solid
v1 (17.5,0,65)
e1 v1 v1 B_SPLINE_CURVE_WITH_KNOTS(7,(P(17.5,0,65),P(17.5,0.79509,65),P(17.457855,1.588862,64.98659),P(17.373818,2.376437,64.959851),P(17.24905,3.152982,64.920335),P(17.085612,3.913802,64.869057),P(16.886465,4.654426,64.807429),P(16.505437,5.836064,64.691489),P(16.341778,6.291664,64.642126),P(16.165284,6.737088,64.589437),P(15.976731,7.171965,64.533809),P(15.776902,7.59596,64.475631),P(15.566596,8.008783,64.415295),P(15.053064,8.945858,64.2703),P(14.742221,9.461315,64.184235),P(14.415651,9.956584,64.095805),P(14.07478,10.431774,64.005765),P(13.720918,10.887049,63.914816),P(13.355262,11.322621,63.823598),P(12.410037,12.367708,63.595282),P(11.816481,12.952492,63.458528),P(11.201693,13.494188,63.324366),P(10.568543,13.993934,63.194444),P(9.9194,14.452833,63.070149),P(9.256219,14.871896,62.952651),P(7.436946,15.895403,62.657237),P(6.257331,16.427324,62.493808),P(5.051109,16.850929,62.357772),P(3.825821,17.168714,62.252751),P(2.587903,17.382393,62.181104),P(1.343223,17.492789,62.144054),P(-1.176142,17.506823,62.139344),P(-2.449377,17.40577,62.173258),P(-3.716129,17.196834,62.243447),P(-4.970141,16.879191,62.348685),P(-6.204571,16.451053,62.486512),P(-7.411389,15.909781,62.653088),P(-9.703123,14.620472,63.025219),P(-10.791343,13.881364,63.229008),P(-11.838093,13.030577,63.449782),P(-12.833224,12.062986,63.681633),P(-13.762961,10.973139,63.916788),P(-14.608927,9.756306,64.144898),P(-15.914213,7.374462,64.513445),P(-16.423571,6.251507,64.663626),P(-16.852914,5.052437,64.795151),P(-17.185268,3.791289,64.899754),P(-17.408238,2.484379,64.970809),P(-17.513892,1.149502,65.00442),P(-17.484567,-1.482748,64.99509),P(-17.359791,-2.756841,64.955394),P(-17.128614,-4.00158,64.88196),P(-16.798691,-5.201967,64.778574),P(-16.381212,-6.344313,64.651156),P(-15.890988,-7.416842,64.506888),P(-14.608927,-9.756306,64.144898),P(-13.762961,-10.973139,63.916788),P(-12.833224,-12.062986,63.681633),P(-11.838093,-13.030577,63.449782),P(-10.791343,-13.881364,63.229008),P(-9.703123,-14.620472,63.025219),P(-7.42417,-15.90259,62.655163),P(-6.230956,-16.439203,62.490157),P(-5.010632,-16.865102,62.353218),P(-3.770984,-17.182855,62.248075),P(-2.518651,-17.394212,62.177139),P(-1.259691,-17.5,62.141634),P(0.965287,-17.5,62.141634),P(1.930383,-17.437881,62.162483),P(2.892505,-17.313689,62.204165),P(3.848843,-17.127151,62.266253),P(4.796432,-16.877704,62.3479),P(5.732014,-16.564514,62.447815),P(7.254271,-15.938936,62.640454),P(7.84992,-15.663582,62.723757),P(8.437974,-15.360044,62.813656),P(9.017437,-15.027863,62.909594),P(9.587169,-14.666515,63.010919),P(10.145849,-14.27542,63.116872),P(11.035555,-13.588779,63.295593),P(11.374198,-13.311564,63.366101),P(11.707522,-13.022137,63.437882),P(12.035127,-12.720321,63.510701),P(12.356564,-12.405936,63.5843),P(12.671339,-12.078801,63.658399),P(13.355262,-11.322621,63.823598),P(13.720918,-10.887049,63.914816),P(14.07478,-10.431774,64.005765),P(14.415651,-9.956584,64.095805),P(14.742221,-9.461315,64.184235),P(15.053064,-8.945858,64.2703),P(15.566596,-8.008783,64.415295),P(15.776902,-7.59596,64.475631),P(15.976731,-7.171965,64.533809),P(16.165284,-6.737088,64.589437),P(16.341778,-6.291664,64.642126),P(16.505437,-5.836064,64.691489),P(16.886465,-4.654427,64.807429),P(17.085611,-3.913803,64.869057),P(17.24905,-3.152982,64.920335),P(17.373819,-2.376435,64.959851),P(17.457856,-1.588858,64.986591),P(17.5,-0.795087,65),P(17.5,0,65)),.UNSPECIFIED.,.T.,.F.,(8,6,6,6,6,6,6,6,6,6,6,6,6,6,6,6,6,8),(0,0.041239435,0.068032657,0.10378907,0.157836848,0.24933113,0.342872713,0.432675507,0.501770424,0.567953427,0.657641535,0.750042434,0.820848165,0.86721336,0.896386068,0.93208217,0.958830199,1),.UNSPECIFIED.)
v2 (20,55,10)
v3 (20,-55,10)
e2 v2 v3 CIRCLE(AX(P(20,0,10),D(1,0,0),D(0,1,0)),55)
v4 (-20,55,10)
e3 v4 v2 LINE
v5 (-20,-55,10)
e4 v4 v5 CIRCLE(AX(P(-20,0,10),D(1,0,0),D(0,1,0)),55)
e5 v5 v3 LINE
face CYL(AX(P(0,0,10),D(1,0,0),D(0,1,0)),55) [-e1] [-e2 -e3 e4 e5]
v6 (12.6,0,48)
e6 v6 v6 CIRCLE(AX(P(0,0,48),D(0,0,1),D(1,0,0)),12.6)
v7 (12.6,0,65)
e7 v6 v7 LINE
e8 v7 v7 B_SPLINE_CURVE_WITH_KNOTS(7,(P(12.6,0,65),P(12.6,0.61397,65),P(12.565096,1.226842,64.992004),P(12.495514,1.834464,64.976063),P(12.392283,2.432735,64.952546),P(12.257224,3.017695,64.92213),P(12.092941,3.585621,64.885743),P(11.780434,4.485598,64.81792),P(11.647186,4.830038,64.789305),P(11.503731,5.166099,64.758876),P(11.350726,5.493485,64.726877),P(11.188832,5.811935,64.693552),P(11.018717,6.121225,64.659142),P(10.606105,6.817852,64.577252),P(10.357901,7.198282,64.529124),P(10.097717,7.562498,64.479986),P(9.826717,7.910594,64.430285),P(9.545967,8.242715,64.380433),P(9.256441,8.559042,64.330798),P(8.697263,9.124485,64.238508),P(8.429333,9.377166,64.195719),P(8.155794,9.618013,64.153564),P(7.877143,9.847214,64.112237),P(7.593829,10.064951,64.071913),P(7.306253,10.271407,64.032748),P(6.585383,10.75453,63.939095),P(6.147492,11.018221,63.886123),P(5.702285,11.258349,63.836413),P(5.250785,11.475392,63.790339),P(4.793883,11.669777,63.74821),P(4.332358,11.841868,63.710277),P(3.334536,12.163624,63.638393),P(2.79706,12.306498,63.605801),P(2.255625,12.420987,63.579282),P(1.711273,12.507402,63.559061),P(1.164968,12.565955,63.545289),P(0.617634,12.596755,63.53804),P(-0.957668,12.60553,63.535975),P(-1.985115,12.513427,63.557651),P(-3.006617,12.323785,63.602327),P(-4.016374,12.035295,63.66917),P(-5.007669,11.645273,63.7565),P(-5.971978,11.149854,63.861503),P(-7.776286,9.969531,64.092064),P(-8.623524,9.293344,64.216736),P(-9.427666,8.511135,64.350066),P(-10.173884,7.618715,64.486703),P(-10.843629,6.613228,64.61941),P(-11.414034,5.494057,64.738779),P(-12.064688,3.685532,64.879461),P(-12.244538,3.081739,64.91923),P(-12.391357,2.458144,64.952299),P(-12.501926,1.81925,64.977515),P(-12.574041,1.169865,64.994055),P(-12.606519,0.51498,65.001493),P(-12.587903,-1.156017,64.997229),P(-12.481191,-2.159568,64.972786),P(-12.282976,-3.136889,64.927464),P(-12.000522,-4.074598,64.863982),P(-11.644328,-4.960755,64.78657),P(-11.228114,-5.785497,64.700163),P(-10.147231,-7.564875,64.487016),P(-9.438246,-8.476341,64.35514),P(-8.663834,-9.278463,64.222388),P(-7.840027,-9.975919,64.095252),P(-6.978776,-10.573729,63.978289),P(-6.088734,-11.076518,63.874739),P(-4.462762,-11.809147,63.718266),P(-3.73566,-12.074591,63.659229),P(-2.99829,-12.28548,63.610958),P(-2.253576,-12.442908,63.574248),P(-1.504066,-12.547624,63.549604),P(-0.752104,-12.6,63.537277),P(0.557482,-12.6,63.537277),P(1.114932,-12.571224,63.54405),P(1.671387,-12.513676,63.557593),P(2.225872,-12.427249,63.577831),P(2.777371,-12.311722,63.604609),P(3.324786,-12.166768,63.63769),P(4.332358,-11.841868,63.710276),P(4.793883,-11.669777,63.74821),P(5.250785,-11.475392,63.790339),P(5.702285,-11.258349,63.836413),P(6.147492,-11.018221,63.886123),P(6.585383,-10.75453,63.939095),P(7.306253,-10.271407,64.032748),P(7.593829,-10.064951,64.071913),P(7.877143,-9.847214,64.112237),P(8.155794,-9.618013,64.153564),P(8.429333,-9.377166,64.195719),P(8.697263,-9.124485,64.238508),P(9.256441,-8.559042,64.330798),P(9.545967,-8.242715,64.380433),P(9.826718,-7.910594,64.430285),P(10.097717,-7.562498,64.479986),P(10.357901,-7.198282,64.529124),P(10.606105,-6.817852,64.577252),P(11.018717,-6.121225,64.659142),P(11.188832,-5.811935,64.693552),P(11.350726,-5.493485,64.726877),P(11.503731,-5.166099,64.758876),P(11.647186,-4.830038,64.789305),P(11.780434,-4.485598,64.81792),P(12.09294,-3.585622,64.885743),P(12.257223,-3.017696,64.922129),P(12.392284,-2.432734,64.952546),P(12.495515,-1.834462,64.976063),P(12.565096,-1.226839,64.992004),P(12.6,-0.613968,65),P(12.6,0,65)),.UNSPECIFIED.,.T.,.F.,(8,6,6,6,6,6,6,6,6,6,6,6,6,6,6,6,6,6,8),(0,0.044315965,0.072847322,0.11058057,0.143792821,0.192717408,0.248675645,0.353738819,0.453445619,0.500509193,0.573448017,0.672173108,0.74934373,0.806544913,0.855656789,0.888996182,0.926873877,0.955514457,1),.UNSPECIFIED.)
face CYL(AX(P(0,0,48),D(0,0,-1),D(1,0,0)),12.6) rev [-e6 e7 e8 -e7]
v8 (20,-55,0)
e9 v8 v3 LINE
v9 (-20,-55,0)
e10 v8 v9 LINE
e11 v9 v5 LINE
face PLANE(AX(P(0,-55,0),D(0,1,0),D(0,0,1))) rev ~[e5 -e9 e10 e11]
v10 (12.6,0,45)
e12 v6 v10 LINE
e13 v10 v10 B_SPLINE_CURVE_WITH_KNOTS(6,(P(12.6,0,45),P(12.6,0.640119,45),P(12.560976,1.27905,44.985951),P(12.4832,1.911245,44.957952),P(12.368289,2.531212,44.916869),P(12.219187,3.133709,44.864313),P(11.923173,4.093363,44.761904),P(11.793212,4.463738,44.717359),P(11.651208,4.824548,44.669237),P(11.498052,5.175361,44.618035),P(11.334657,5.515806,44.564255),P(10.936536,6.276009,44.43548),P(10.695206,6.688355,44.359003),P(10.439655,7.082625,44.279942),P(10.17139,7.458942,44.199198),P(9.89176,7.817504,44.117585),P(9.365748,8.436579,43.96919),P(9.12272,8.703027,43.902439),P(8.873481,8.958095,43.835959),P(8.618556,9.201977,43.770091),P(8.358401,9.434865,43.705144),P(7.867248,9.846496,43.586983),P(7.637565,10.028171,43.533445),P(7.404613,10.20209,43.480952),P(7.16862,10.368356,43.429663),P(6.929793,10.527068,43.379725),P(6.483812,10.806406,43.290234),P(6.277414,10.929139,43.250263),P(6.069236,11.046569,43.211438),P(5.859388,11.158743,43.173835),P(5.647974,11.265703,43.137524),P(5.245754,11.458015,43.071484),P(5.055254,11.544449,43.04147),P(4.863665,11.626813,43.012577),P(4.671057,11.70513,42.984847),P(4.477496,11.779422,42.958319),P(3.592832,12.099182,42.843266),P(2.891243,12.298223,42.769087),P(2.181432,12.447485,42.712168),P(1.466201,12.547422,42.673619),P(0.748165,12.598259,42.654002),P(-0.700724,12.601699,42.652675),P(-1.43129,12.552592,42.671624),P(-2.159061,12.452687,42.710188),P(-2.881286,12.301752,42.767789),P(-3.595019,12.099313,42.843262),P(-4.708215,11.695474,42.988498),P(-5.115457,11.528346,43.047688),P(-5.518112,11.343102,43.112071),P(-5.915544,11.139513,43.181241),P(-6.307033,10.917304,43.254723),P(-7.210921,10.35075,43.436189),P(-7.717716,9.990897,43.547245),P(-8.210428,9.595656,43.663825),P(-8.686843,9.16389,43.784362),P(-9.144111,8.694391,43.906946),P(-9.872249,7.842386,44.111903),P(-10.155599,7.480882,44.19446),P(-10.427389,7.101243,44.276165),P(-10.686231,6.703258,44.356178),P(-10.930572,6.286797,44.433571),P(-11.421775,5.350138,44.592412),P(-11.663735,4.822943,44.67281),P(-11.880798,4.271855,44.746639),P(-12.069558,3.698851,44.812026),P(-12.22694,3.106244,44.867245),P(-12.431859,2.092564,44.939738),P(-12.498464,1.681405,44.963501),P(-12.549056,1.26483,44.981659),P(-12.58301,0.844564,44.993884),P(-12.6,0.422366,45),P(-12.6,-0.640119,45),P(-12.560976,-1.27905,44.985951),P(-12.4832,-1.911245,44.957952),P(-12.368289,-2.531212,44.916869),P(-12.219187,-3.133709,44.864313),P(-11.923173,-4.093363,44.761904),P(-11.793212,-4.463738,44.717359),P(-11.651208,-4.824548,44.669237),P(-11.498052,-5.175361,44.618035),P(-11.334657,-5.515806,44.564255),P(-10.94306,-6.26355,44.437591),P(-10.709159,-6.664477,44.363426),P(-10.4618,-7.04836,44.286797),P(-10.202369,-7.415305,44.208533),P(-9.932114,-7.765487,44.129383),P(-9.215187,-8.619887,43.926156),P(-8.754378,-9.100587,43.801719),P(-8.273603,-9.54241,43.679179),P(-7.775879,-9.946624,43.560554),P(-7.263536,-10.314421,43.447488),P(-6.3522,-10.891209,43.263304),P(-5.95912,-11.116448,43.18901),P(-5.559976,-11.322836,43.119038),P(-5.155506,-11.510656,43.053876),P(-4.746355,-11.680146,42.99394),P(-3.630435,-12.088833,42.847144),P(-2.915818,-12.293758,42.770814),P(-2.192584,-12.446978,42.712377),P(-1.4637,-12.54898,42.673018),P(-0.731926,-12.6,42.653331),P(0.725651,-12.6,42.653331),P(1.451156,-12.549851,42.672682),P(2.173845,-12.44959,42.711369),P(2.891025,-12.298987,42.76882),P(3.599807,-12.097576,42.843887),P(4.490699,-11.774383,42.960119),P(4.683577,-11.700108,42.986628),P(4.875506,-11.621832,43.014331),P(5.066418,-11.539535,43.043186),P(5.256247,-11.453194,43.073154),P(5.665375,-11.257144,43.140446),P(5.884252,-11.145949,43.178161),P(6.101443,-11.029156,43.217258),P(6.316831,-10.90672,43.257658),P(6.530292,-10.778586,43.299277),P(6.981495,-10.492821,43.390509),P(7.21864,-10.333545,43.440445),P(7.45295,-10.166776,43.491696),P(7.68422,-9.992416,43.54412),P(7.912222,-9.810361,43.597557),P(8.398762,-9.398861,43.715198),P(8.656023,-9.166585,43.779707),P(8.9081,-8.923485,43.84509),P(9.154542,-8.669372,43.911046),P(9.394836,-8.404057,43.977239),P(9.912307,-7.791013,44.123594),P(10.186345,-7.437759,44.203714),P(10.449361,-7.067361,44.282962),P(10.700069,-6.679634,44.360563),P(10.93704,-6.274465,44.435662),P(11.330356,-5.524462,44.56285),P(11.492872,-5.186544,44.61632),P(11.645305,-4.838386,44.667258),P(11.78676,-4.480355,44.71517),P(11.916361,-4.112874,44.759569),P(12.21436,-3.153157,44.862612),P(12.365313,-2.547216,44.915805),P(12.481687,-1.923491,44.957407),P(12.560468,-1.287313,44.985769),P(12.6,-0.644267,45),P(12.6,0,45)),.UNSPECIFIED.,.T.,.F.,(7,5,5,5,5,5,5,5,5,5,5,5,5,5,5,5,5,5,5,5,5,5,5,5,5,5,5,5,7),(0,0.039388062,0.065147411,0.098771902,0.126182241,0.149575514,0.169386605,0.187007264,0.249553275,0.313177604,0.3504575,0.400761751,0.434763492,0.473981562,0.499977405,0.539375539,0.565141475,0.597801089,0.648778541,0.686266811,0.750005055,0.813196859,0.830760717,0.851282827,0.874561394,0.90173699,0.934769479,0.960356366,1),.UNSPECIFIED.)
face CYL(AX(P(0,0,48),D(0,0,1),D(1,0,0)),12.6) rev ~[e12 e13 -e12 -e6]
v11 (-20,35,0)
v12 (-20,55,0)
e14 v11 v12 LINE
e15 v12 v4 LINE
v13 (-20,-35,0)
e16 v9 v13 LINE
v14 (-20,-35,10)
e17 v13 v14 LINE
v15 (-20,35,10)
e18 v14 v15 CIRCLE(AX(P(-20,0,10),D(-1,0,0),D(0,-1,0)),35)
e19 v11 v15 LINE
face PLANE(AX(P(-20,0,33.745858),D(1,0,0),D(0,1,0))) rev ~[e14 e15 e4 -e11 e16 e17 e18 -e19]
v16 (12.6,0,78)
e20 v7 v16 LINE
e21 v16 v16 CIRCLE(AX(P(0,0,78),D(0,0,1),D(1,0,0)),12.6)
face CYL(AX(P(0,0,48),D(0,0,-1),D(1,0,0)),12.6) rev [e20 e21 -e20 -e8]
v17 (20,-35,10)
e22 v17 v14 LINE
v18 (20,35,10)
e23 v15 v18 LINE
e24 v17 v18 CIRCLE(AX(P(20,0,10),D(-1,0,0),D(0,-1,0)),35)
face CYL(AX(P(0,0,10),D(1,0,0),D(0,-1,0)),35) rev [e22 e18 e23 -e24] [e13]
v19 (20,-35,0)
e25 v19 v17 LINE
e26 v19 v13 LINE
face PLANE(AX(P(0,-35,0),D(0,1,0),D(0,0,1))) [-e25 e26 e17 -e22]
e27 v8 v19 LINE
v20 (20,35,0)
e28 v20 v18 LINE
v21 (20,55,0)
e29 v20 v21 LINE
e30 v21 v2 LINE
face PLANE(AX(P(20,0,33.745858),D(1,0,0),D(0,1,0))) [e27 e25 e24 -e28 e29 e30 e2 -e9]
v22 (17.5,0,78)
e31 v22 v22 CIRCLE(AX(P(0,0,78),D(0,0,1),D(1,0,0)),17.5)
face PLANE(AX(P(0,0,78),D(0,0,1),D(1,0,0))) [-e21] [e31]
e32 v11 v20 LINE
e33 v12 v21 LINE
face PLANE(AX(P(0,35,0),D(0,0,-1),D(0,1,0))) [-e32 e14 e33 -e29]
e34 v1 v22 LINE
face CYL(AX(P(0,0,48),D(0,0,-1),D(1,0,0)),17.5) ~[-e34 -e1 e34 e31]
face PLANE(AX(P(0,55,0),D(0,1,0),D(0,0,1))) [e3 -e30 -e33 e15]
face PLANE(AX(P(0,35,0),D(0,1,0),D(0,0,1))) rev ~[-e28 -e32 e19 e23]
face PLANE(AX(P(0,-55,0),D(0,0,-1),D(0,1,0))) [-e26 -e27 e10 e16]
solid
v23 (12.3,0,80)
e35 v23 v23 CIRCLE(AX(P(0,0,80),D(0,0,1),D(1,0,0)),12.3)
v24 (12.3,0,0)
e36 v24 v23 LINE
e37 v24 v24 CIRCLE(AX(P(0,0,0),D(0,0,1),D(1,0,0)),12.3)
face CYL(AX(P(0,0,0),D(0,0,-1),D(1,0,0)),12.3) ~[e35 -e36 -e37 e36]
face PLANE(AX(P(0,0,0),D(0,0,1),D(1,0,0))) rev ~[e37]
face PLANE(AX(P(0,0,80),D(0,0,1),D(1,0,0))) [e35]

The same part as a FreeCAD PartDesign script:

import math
import FreeCAD as App
import Part
import Sketcher

V = App.Vector

doc = App.newDocument("Part")
params = doc.addObject("Spreadsheet::Sheet", "Params")
for row, (alias, value) in enumerate([
    ("sketch1_radius", "35 mm"),
    ("sketch1_radius2", "55 mm"),
    ("sketch1_height", "10 mm"),
    ("pad1_length", "20 mm"),
    ("pad1_length2", "20 mm"),
    ("sketch2_diameter", "35 mm"),
    ("sketch2_diameter2", "25.2 mm"),
    ("pad2_length", "30 mm"),
    ("sketch3_diameter", "25.2 mm"),
    ("sketch4_diameter", "24.6 mm"),
    ("pad3_length", "80 mm"),
], start=1):
    params.set(f"A{row}", alias)
    params.set(f"B{row}", "=" + value)
    params.setAlias(f"B{row}", alias)

body = doc.addObject("PartDesign::Body", "Body")

sketch1 = body.newObject("Sketcher::SketchObject", "Sketch")
sketch1.AttachmentSupport = (doc.getObject("YZ_Plane"), [""])
sketch1.MapMode = "FlatFace"
sketch1.addGeometry([
    Part.ArcOfCircle(Part.Circle(V(0, 10, 0), V(0, 0, 1), 35), math.radians(0), math.radians(180)),
    Part.LineSegment(V(35, 10, 0), V(35, 0, 0)),
    Part.LineSegment(V(35, 0, 0), V(55, 0, 0)),
    Part.LineSegment(V(55, 0, 0), V(55, 10, 0)),
    Part.ArcOfCircle(Part.Circle(V(0, 10, 0), V(0, 0, 1), 55), math.radians(0), math.radians(180)),
    Part.LineSegment(V(-55, 10, 0), V(-55, 0, 0)),
    Part.LineSegment(V(-55, 0, 0), V(-35, 0, 0)),
    Part.LineSegment(V(-35, 0, 0), V(-35, 10, 0)),
], False)
sketch1.addConstraint([
    Sketcher.Constraint("Tangent", 0, 1, 1, 1),
    Sketcher.Constraint("Coincident", 1, 2, 2, 1),
    Sketcher.Constraint("Coincident", 2, 2, 3, 1),
    Sketcher.Constraint("Tangent", 3, 2, 4, 1),
    Sketcher.Constraint("Tangent", 4, 2, 5, 1),
    Sketcher.Constraint("Coincident", 5, 2, 6, 1),
    Sketcher.Constraint("Coincident", 6, 2, 7, 1),
    Sketcher.Constraint("Tangent", 7, 2, 0, 2),
    Sketcher.Constraint("Vertical", 1),
    Sketcher.Constraint("Horizontal", 2),
    Sketcher.Constraint("Vertical", 3),
    Sketcher.Constraint("Vertical", 5),
    Sketcher.Constraint("Horizontal", 6),
    Sketcher.Constraint("Vertical", 7),
    Sketcher.Constraint("Coincident", 4, 3, 0, 3),
    Sketcher.Constraint("Symmetric", 2, 2, 5, 2, -1, 1),
    Sketcher.Constraint("PointOnObject", 1, 2, -1),
    Sketcher.Constraint("Radius", 0, 35.0),
    Sketcher.Constraint("Radius", 4, 55.0),
    Sketcher.Constraint("DistanceY", 1, 2, 1, 1, 10.0),
])
sketch1.setExpression("Constraints[17]", "Params.sketch1_radius")
sketch1.setExpression("Constraints[18]", "Params.sketch1_radius2")
sketch1.setExpression("Constraints[19]", "Params.sketch1_height")
pad1 = body.newObject("PartDesign::Pad", "Pad")
pad1.Profile = sketch1
pad1.Type = "TwoLengths"
pad1.setExpression("Length", "Params.pad1_length")
pad1.setExpression("Length2", "Params.pad1_length2")

sketch2 = body.newObject("Sketcher::SketchObject", "Sketch001")
sketch2.AttachmentSupport = (doc.getObject("XY_Plane"), [""])
sketch2.MapMode = "FlatFace"
sketch2.AttachmentOffset = App.Placement(V(0, 0, 48), App.Rotation())
sketch2.addGeometry([
    Part.Circle(V(0, 0, 0), V(0, 0, 1), 18),
    Part.Circle(V(0, 0, 0), V(0, 0, 1), 13),
], False)
sketch2.addConstraint([
    Sketcher.Constraint("Coincident", 0, 3, -1, 1),
    Sketcher.Constraint("Coincident", 1, 3, -1, 1),
    Sketcher.Constraint("Diameter", 0, 35.0),
    Sketcher.Constraint("Diameter", 1, 25.2),
])
sketch2.setExpression("Constraints[2]", "Params.sketch2_diameter")
sketch2.setExpression("Constraints[3]", "Params.sketch2_diameter2")
pad2 = body.newObject("PartDesign::Pad", "Pad001")
pad2.Profile = sketch2
pad2.setExpression("Length", "Params.pad2_length")

sketch3 = body.newObject("Sketcher::SketchObject", "Sketch002")
sketch3.AttachmentSupport = (doc.getObject("XY_Plane"), [""])
sketch3.MapMode = "FlatFace"
sketch3.AttachmentOffset = App.Placement(V(0, 0, 48), App.Rotation())
sketch3.addGeometry(Part.Circle(V(0, 0, 0), V(0, 0, 1), 13), False)
sketch3.addConstraint([
    Sketcher.Constraint("Coincident", 0, 3, -1, 1),
    Sketcher.Constraint("Diameter", 0, 25.2),
])
sketch3.setExpression("Constraints[1]", "Params.sketch3_diameter")
pocket1 = body.newObject("PartDesign::Pocket", "Pocket")
pocket1.Profile = sketch3
pocket1.Type = "ThroughAll"
pocket1.Midplane = True
body2 = doc.addObject("PartDesign::Body", "Body001")

sketch4 = body2.newObject("Sketcher::SketchObject", "Sketch003")
sketch4.AttachmentSupport = (doc.getObject("XY_Plane001"), [""])
sketch4.MapMode = "FlatFace"
sketch4.addGeometry(Part.Circle(V(0, 0, 0), V(0, 0, 1), 12), False)
sketch4.addConstraint([
    Sketcher.Constraint("Coincident", 0, 3, -1, 1),
    Sketcher.Constraint("Diameter", 0, 24.6),
])
sketch4.setExpression("Constraints[1]", "Params.sketch4_diameter")
pad3 = body2.newObject("PartDesign::Pad", "Pad002")
pad3.Profile = sketch4
pad3.setExpression("Length", "Params.pad3_length")

doc.recompute()
